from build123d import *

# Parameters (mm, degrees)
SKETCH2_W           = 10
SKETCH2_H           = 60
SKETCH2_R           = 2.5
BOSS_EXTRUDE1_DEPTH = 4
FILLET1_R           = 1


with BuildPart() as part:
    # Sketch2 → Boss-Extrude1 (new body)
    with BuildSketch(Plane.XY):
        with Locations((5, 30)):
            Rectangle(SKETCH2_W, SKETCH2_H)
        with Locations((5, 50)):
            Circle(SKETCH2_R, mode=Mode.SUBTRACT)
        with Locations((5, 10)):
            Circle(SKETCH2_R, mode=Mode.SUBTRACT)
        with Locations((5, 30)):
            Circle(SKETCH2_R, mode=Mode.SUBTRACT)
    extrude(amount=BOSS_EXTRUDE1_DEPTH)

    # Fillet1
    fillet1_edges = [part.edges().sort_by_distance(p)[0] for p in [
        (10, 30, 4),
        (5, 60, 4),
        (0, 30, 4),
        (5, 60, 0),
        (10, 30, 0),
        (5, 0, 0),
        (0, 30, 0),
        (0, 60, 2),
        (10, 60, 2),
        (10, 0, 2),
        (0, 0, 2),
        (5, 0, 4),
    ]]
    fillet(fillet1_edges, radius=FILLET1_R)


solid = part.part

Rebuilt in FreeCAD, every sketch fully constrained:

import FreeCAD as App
import Part
import Sketcher

V = App.Vector
Q = App.Units.Quantity


def edges_at(feature, points):
    """Names of the edges that pass closest to the given points."""
    edges = feature.Shape.Edges
    near = lambda p: min(range(len(edges)), key=lambda i: edges[i].distToShape(Part.Vertex(*p))[0])
    return sorted({f"Edge{near(p) + 1}" for p in points})

doc = App.newDocument("Part")
body = doc.addObject("PartDesign::Body", "Body")

# Sketch on XY plane
sketch1 = body.newObject("Sketcher::SketchObject", "Sketch")
sketch1.AttachmentSupport = (doc.getObject("XY_Plane"), [""])
sketch1.MapMode = "FlatFace"
sketch1.addGeometry(Part.LineSegment(V(0, 60, 0), V(0, 0, 0)), False)
sketch1.addGeometry(Part.LineSegment(V(0, 0, 0), V(10, 0, 0)), False)
sketch1.addGeometry(Part.LineSegment(V(10, 0, 0), V(10, 60, 0)), False)
sketch1.addGeometry(Part.LineSegment(V(10, 60, 0), V(0, 60, 0)), False)
sketch1.addGeometry(Part.Circle(V(5, 10, 0), V(0, 0, 1), 2.5), False)
sketch1.addGeometry(Part.Circle(V(5, 30, 0), V(0, 0, 1), 2.5), False)
sketch1.addGeometry(Part.Circle(V(5, 50, 0), V(0, 0, 1), 2.5), False)
sketch1.addConstraint(Sketcher.Constraint("Coincident", 0, 2, 1, 1))
sketch1.addConstraint(Sketcher.Constraint("Coincident", 1, 2, 2, 1))
sketch1.addConstraint(Sketcher.Constraint("Coincident", 2, 2, 3, 1))
sketch1.addConstraint(Sketcher.Constraint("Coincident", 3, 2, 0, 1))
sketch1.addConstraint(Sketcher.Constraint("Vertical", 0))
sketch1.addConstraint(Sketcher.Constraint("Horizontal", 1))
sketch1.addConstraint(Sketcher.Constraint("Vertical", 2))
sketch1.addConstraint(Sketcher.Constraint("Horizontal", 3))
sketch1.addConstraint(Sketcher.Constraint("Coincident", 0, 2, -1, 1))
sketch1.addConstraint(Sketcher.Constraint("Equal", 4, 5))
sketch1.addConstraint(Sketcher.Constraint("Equal", 5, 6))
sketch1.addConstraint(Sketcher.Constraint("Vertical", 4, 3, 5, 3))
sketch1.addConstraint(Sketcher.Constraint("Vertical", 5, 3, 6, 3))
sketch1.addConstraint(Sketcher.Constraint("Diameter", 4, Q("5 mm")))
sketch1.addConstraint(Sketcher.Constraint("DistanceX", 1, 1, 1, 2, Q("10 mm")))
sketch1.addConstraint(Sketcher.Constraint("DistanceY", 0, 2, 0, 1, Q("60 mm")))
sketch1.addConstraint(Sketcher.Constraint("DistanceX", -1, 1, 4, 3, Q("5 mm")))
sketch1.addConstraint(Sketcher.Constraint("DistanceY", -1, 1, 4, 3, Q("10 mm")))
sketch1.addConstraint(Sketcher.Constraint("DistanceY", -1, 1, 5, 3, Q("30 mm")))
sketch1.addConstraint(Sketcher.Constraint("DistanceY", -1, 1, 6, 3, Q("50 mm")))
pad1 = body.newObject("PartDesign::Pad", "Pad")
pad1.Profile = sketch1
pad1.Length = 4
doc.recompute()

fillet = body.newObject("PartDesign::Fillet", "Fillet")
fillet.Base = (pad1, edges_at(pad1, [
    (10, 30, 4),
    (5, 60, 4),
    (0, 30, 4),
    (5, 60, 0),
    (10, 30, 0),
    (5, 0, 0),
    (0, 30, 0),
    (0, 60, 2),
    (10, 60, 2),
    (10, 0, 2),
    (0, 0, 2),
    (5, 0, 4),
]))
fillet.Radius = 1

doc.recompute()
